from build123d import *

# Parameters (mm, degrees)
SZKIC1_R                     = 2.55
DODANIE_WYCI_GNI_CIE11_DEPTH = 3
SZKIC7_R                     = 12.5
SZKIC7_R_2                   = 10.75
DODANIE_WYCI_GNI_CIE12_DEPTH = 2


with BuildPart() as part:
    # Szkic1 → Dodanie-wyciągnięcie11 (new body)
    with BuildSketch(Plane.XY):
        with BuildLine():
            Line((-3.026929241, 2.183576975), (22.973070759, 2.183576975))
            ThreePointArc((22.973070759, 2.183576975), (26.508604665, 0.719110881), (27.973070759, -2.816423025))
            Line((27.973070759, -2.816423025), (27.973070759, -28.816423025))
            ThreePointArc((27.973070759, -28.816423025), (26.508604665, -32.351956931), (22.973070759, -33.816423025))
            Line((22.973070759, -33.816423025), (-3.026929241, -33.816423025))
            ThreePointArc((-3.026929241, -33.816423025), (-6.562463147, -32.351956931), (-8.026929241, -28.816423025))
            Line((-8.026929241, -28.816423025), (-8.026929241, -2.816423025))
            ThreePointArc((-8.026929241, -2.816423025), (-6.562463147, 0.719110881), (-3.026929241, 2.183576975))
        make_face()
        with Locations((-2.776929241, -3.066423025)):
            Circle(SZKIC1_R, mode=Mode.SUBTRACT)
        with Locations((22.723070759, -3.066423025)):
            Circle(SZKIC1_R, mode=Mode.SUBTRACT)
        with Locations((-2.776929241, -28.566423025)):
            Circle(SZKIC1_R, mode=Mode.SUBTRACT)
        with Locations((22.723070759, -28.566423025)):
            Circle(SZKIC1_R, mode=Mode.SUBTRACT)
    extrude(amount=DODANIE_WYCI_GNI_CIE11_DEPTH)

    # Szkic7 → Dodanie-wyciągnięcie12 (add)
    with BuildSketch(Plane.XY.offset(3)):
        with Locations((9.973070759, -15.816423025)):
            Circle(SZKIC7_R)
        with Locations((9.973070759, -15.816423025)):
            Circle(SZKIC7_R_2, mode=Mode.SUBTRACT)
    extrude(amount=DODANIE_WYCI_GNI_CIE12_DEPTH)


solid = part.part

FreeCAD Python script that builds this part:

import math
import FreeCAD as App
import Part
import Sketcher

V = App.Vector

doc = App.newDocument("Part")
body = doc.addObject("PartDesign::Body", "Body")

# Sketch on XY plane
sketch1 = body.newObject("Sketcher::SketchObject", "Sketch")
sketch1.AttachmentSupport = (doc.getObject("XY_Plane"), [""])
sketch1.MapMode = "FlatFace"
sketch1.addGeometry([
    Part.LineSegment(V(22.973071, 2.183577, 0), V(-3.026929, 2.183577, 0)),  # 0
    Part.ArcOfCircle(Part.Circle(V(-3.026929, -2.816423, 0), V(0, 0, 1), 5), math.radians(90), math.radians(180)),  # 1
    Part.LineSegment(V(-8.026929, -2.816423, 0), V(-8.026929, -28.816423, 0)),  # 2
    Part.ArcOfCircle(Part.Circle(V(-3.026929, -28.816423, 0), V(0, 0, 1), 5), math.radians(180), math.radians(270)),  # 3
    Part.LineSegment(V(-3.026929, -33.816423, 0), V(22.973071, -33.816423, 0)),  # 4
    Part.ArcOfCircle(Part.Circle(V(22.973071, -28.816423, 0), V(0, 0, 1), 5), math.radians(-90), math.radians(0)),  # 5
    Part.LineSegment(V(27.973071, -28.816423, 0), V(27.973071, -2.816423, 0)),  # 6
    Part.ArcOfCircle(Part.Circle(V(22.973071, -2.816423, 0), V(0, 0, 1), 5), math.radians(0), math.radians(90)),  # 7
    Part.Circle(V(22.723071, -28.566423, 0), V(0, 0, 1), 2.55),  # 8
    Part.Circle(V(-2.776929, -28.566423, 0), V(0, 0, 1), 2.55),  # 9
    Part.Circle(V(22.723071, -3.066423, 0), V(0, 0, 1), 2.55),  # 10
    Part.Circle(V(-2.776929, -3.066423, 0), V(0, 0, 1), 2.55),  # 11
], False)
sketch1.addConstraint([
    Sketcher.Constraint("Tangent", 0, 2, 1, 1),
    Sketcher.Constraint("Tangent", 1, 2, 2, 1),
    Sketcher.Constraint("Tangent", 2, 2, 3, 1),
    Sketcher.Constraint("Tangent", 3, 2, 4, 1),
    Sketcher.Constraint("Tangent", 4, 2, 5, 1),
    Sketcher.Constraint("Tangent", 5, 2, 6, 1),
    Sketcher.Constraint("Tangent", 6, 2, 7, 1),
    Sketcher.Constraint("Tangent", 7, 2, 0, 1),
    Sketcher.Constraint("Horizontal", 0),
    Sketcher.Constraint("Vertical", 2),
    Sketcher.Constraint("Horizontal", 4),
    Sketcher.Constraint("Vertical", 6),
    Sketcher.Constraint("Equal", 1, 3),
    Sketcher.Constraint("Equal", 3, 5),
    Sketcher.Constraint("Equal", 5, 7),
    Sketcher.Constraint("Equal", 8, 9),
    Sketcher.Constraint("Equal", 9, 10),
    Sketcher.Constraint("Equal", 10, 11),
    Sketcher.Constraint("Horizontal", 8, 3, 9, 3),
    Sketcher.Constraint("Horizontal", 10, 3, 11, 3),
    Sketcher.Constraint("Vertical", 8, 3, 10, 3),
    Sketcher.Constraint("Vertical", 9, 3, 11, 3),
    Sketcher.Constraint("Equal", 4, 2),
    Sketcher.Constraint("Radius", 1, 5.0),
    Sketcher.Constraint("Diameter", 8, 5.1),
    Sketcher.Constraint("DistanceX", 0, 2, 0, 1, 26.0),
    Sketcher.Constraint("DistanceX", 9, 3, 8, 3, 25.5),
    Sketcher.Constraint("DistanceY", 8, 3, 10, 3, 25.5),
    Sketcher.Constraint("DistanceX", 8, 3, 5, 3, 0.25),
    Sketcher.Constraint("DistanceY", 5, 3, 8, 3, 0.25),
    Sketcher.Constraint("DistanceX", 1, 3, -1, 1, 3.026929),
    Sketcher.Constraint("DistanceY", 1, 3, -1, 1, 2.816423),
])
pad1 = body.newObject("PartDesign::Pad", "Pad")
pad1.Profile = sketch1
pad1.Length = 3

# Sketch on XY plane
sketch2 = body.newObject("Sketcher::SketchObject", "Sketch001")
sketch2.AttachmentSupport = (doc.getObject("XY_Plane"), [""])
sketch2.MapMode = "FlatFace"
sketch2.AttachmentOffset = App.Placement(V(0, 0, 3), App.Rotation())
sketch2.addGeometry([
    Part.Circle(V(9.973071, -15.816423, 0), V(0, 0, 1), 12.5),
    Part.Circle(V(9.973071, -15.816423, 0), V(0, 0, 1), 10.75),
], False)
sketch2.addConstraint([
    Sketcher.Constraint("Coincident", 1, 3, 0, 3),
    Sketcher.Constraint("Diameter", 0, 25.0),
    Sketcher.Constraint("Diameter", 1, 21.5),
    Sketcher.Constraint("DistanceX", -1, 1, 0, 3, 9.973071),
    Sketcher.Constraint("DistanceY", 0, 3, -1, 1, 15.816423),
])
pad2 = body.newObject("PartDesign::Pad", "Pad001")
pad2.Profile = sketch2
pad2.Length = 2

doc.recompute()
